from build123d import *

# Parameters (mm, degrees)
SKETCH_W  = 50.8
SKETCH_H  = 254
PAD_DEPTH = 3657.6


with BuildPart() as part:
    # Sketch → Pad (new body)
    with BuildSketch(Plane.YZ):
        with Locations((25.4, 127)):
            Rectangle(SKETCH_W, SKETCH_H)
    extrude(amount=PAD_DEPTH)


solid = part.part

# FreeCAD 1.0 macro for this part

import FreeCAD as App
import Part
import Sketcher

V = App.Vector
Q = App.Units.Quantity

doc = App.newDocument("Part")
body = doc.addObject("PartDesign::Body", "Body")

# Sketch on YZ plane
sketch1 = body.newObject("Sketcher::SketchObject", "Sketch")
sketch1.AttachmentSupport = (doc.getObject("YZ_Plane"), [""])
sketch1.MapMode = "FlatFace"
sketch1.addGeometry([
    Part.LineSegment(V(0, 254, 0), V(0, 0, 0)),
    Part.LineSegment(V(0, 0, 0), V(51, 0, 0)),
    Part.LineSegment(V(51, 0, 0), V(51, 254, 0)),
    Part.LineSegment(V(51, 254, 0), V(0, 254, 0)),
], False)
sketch1.addConstraint([
    Sketcher.Constraint("Coincident", 0, 2, 1, 1),
    Sketcher.Constraint("Coincident", 1, 2, 2, 1),
    Sketcher.Constraint("Coincident", 2, 2, 3, 1),
    Sketcher.Constraint("Coincident", 3, 2, 0, 1),
    Sketcher.Constraint("Vertical", 0),
    Sketcher.Constraint("Horizontal", 1),
    Sketcher.Constraint("Vertical", 2),
    Sketcher.Constraint("Horizontal", 3),
    Sketcher.Constraint("Coincident", 0, 2, -1, 1),
    Sketcher.Constraint("DistanceX", 1, 1, 1, 2, Q("2 in")),
    Sketcher.Constraint("DistanceY", 0, 2, 0, 1, Q("10 in")),
])
pad1 = body.newObject("PartDesign::Pad", "Pad")
pad1.Profile = sketch1
pad1.Length = Q("144 in")

doc.recompute()
